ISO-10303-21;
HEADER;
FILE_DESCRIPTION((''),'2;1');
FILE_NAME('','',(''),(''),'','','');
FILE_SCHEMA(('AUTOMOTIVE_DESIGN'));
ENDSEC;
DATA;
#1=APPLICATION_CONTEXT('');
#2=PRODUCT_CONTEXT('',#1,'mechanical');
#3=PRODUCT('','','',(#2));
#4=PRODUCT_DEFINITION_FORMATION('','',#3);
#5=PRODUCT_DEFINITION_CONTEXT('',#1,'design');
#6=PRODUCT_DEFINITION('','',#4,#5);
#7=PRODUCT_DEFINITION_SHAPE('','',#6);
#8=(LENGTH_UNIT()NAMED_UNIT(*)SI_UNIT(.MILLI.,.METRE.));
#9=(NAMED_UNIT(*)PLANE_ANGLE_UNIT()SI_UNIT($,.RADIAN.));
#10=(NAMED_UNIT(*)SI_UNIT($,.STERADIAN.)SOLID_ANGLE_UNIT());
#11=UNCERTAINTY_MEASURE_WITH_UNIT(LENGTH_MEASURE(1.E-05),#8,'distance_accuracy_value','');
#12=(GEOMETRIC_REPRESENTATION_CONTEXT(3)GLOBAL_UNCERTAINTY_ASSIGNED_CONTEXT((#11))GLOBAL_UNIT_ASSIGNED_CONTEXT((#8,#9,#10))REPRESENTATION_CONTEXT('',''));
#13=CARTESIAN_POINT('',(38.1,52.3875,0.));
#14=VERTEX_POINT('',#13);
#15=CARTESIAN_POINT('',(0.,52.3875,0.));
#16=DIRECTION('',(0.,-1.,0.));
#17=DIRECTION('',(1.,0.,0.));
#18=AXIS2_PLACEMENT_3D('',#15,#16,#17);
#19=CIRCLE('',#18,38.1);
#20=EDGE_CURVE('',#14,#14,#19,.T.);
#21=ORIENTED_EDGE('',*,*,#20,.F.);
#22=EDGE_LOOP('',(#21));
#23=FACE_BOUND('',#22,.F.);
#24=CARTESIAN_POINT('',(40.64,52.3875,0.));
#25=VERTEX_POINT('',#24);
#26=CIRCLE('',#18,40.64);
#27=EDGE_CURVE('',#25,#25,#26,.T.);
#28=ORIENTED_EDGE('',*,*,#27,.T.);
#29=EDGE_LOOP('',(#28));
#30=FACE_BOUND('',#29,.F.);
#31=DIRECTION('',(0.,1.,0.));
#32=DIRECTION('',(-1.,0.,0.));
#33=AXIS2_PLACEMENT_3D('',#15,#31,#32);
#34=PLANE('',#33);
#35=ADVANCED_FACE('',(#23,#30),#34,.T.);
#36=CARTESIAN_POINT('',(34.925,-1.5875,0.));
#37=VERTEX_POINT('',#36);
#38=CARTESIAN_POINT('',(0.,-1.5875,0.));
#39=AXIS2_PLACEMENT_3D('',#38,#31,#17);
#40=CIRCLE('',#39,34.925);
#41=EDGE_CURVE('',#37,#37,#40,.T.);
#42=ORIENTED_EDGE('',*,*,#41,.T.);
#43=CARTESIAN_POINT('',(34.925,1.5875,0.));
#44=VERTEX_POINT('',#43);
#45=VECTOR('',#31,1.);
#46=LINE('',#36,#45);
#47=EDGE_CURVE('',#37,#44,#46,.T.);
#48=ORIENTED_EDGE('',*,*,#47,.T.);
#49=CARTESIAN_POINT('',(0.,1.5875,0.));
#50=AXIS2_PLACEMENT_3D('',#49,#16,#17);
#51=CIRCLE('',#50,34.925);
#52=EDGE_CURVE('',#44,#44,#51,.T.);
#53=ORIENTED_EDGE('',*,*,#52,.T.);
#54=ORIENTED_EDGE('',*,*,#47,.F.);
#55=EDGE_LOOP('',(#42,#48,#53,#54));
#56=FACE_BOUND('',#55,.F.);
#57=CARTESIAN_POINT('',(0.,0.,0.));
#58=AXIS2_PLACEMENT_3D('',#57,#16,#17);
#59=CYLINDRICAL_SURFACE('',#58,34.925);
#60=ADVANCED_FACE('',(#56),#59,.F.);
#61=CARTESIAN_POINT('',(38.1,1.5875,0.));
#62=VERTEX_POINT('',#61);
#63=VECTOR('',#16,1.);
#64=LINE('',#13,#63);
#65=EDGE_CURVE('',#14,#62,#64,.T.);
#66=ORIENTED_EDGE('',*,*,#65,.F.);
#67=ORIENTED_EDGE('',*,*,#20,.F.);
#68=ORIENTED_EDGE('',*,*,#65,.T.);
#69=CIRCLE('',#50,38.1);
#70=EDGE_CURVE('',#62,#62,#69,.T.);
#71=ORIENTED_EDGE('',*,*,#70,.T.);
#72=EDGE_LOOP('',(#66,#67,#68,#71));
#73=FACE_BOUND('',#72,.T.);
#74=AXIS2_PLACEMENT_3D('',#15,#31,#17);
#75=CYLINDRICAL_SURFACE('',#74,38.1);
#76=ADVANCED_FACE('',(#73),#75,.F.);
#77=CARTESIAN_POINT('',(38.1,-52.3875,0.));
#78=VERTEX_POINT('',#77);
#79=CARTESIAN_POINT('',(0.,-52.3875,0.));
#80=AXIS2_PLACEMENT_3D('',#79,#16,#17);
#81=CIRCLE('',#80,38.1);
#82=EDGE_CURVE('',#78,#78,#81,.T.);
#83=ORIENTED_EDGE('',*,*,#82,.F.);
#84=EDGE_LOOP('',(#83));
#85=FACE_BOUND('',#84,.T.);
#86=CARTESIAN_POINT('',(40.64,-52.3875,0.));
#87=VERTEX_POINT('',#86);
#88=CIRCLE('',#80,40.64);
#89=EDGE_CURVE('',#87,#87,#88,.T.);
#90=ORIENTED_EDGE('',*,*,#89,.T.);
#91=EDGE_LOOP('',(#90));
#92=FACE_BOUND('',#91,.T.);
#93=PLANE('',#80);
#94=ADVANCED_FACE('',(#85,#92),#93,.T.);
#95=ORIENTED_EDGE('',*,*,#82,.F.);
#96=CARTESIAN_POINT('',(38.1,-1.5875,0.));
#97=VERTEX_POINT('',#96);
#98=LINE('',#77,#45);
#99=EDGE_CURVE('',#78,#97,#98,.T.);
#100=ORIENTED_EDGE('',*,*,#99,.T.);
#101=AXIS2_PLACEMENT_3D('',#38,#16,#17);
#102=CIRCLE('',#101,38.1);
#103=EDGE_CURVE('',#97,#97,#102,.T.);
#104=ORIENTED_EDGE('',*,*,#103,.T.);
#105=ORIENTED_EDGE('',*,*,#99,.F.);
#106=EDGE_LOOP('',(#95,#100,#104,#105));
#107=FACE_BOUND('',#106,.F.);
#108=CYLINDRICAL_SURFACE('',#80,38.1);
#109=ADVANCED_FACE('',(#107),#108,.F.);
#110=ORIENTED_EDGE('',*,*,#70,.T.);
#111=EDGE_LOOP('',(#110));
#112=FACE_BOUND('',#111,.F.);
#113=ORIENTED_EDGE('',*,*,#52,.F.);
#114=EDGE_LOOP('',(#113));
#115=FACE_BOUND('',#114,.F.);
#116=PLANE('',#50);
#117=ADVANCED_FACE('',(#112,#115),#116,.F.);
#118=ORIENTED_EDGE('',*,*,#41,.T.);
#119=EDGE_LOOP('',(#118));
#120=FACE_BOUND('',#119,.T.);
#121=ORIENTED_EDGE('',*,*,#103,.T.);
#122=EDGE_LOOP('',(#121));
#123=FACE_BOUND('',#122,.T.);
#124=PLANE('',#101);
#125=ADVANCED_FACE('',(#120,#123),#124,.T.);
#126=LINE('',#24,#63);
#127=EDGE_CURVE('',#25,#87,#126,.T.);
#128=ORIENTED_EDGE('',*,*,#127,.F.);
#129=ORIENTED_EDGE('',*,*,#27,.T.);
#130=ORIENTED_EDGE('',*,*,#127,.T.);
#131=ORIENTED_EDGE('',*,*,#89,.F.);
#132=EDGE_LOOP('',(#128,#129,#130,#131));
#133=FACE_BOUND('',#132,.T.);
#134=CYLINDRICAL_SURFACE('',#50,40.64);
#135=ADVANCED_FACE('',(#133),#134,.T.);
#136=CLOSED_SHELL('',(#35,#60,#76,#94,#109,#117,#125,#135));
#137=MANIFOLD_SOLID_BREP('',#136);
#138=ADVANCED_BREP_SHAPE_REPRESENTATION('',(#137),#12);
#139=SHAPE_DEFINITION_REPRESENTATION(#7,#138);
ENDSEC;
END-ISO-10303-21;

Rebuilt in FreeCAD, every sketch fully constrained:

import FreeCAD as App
import Part
import Sketcher
Q = App.Units.Quantity

doc = App.newDocument("Part")
body = doc.addObject("PartDesign::Body", "Body")

# Sketch on XZ plane
sketch1 = doc.addObject("Sketcher::SketchObject", "Sketch")
body.addObject(sketch1)
sketch1.AttachmentSupport = (doc.XZ_Plane, [""])
sketch1.MapMode = "FlatFace"
sketch1.addGeometry(Part.Circle(App.Vector(0, 0, 0), App.Vector(0, 0, 1), 40.64), False)
sketch1.addConstraint([
    Sketcher.Constraint("Coincident", 0, 3, -1, 1),
    Sketcher.Constraint("Diameter", 0, Q("3.2 in")),
])
pad1 = doc.addObject("PartDesign::Pad", "Pad")
body.addObject(pad1)
pad1.Profile = sketch1
pad1.Length = Q("0.125 in")
pad1.Midplane = True

# Sketch on XZ plane
sketch2 = doc.addObject("Sketcher::SketchObject", "Sketch001")
body.addObject(sketch2)
sketch2.AttachmentSupport = (doc.XZ_Plane, [""])
sketch2.MapMode = "FlatFace"
sketch2.addGeometry(Part.Circle(App.Vector(0, 0, 0), App.Vector(0, 0, 1), 34.925), False)
sketch2.addConstraint([
    Sketcher.Constraint("Coincident", 0, 3, -1, 1),
    Sketcher.Constraint("Diameter", 0, Q("2.75 in")),
])
pocket1 = doc.addObject("PartDesign::Pocket", "Pocket")
body.addObject(pocket1)
pocket1.Profile = sketch2
pocket1.Type = "ThroughAll"
pocket1.Midplane = True

# Sketch on XZ plane
sketch3 = doc.addObject("Sketcher::SketchObject", "Sketch002")
body.addObject(sketch3)
sketch3.AttachmentSupport = (doc.XZ_Plane, [""])
sketch3.MapMode = "FlatFace"
sketch3.AttachmentOffset = App.Placement(App.Vector(0, 0, 0.0625 * 25.4), App.Rotation())
sketch3.addGeometry(Part.Circle(App.Vector(0, 0, 0), App.Vector(0, 0, 1), 40.64), False)
sketch3.addConstraint([
    Sketcher.Constraint("Coincident", 0, 3, -1, 1),
    Sketcher.Constraint("Diameter", 0, Q("3.2 in")),
])
pad2 = doc.addObject("PartDesign::Pad", "Pad001")
body.addObject(pad2)
pad2.Profile = sketch3
pad2.Length = Q("2 in")

# Sketch on XZ plane
sketch4 = doc.addObject("Sketcher::SketchObject", "Sketch003")
body.addObject(sketch4)
sketch4.AttachmentSupport = (doc.XZ_Plane, [""])
sketch4.MapMode = "FlatFace"
sketch4.AttachmentOffset = App.Placement(App.Vector(0, 0, 2.0625 * 25.4), App.Rotation())
sketch4.addGeometry(Part.Circle(App.Vector(0, 0, 0), App.Vector(0, 0, 1), 38.1), False)
sketch4.addConstraint([
    Sketcher.Constraint("Coincident", 0, 3, -1, 1),
    Sketcher.Constraint("Diameter", 0, Q("3 in")),
])
pocket2 = doc.addObject("PartDesign::Pocket", "Pocket001")
body.addObject(pocket2)
pocket2.Profile = sketch4
pocket2.Length = Q("2 in")
body2 = doc.addObject("PartDesign::Body", "Body001")
doc.recompute()

body2.BaseFeature = body
doc.recompute()

mirroring = doc.addObject("Part::Mirroring", "Mirroring")
mirroring.Source = body
mirroring.Base = App.Vector(0, 0, 0)
mirroring.Normal = App.Vector(0, -1, 0)
body3 = doc.addObject("PartDesign::Body", "Body002")
body3.BaseFeature = mirroring
boolean = doc.addObject("PartDesign::Boolean", "Boolean")
body2.addObject(boolean)
boolean.Type = "Fuse"
boolean.addObjects([body3])
doc.recompute()
mirroring.Visibility = False

doc.recompute()
